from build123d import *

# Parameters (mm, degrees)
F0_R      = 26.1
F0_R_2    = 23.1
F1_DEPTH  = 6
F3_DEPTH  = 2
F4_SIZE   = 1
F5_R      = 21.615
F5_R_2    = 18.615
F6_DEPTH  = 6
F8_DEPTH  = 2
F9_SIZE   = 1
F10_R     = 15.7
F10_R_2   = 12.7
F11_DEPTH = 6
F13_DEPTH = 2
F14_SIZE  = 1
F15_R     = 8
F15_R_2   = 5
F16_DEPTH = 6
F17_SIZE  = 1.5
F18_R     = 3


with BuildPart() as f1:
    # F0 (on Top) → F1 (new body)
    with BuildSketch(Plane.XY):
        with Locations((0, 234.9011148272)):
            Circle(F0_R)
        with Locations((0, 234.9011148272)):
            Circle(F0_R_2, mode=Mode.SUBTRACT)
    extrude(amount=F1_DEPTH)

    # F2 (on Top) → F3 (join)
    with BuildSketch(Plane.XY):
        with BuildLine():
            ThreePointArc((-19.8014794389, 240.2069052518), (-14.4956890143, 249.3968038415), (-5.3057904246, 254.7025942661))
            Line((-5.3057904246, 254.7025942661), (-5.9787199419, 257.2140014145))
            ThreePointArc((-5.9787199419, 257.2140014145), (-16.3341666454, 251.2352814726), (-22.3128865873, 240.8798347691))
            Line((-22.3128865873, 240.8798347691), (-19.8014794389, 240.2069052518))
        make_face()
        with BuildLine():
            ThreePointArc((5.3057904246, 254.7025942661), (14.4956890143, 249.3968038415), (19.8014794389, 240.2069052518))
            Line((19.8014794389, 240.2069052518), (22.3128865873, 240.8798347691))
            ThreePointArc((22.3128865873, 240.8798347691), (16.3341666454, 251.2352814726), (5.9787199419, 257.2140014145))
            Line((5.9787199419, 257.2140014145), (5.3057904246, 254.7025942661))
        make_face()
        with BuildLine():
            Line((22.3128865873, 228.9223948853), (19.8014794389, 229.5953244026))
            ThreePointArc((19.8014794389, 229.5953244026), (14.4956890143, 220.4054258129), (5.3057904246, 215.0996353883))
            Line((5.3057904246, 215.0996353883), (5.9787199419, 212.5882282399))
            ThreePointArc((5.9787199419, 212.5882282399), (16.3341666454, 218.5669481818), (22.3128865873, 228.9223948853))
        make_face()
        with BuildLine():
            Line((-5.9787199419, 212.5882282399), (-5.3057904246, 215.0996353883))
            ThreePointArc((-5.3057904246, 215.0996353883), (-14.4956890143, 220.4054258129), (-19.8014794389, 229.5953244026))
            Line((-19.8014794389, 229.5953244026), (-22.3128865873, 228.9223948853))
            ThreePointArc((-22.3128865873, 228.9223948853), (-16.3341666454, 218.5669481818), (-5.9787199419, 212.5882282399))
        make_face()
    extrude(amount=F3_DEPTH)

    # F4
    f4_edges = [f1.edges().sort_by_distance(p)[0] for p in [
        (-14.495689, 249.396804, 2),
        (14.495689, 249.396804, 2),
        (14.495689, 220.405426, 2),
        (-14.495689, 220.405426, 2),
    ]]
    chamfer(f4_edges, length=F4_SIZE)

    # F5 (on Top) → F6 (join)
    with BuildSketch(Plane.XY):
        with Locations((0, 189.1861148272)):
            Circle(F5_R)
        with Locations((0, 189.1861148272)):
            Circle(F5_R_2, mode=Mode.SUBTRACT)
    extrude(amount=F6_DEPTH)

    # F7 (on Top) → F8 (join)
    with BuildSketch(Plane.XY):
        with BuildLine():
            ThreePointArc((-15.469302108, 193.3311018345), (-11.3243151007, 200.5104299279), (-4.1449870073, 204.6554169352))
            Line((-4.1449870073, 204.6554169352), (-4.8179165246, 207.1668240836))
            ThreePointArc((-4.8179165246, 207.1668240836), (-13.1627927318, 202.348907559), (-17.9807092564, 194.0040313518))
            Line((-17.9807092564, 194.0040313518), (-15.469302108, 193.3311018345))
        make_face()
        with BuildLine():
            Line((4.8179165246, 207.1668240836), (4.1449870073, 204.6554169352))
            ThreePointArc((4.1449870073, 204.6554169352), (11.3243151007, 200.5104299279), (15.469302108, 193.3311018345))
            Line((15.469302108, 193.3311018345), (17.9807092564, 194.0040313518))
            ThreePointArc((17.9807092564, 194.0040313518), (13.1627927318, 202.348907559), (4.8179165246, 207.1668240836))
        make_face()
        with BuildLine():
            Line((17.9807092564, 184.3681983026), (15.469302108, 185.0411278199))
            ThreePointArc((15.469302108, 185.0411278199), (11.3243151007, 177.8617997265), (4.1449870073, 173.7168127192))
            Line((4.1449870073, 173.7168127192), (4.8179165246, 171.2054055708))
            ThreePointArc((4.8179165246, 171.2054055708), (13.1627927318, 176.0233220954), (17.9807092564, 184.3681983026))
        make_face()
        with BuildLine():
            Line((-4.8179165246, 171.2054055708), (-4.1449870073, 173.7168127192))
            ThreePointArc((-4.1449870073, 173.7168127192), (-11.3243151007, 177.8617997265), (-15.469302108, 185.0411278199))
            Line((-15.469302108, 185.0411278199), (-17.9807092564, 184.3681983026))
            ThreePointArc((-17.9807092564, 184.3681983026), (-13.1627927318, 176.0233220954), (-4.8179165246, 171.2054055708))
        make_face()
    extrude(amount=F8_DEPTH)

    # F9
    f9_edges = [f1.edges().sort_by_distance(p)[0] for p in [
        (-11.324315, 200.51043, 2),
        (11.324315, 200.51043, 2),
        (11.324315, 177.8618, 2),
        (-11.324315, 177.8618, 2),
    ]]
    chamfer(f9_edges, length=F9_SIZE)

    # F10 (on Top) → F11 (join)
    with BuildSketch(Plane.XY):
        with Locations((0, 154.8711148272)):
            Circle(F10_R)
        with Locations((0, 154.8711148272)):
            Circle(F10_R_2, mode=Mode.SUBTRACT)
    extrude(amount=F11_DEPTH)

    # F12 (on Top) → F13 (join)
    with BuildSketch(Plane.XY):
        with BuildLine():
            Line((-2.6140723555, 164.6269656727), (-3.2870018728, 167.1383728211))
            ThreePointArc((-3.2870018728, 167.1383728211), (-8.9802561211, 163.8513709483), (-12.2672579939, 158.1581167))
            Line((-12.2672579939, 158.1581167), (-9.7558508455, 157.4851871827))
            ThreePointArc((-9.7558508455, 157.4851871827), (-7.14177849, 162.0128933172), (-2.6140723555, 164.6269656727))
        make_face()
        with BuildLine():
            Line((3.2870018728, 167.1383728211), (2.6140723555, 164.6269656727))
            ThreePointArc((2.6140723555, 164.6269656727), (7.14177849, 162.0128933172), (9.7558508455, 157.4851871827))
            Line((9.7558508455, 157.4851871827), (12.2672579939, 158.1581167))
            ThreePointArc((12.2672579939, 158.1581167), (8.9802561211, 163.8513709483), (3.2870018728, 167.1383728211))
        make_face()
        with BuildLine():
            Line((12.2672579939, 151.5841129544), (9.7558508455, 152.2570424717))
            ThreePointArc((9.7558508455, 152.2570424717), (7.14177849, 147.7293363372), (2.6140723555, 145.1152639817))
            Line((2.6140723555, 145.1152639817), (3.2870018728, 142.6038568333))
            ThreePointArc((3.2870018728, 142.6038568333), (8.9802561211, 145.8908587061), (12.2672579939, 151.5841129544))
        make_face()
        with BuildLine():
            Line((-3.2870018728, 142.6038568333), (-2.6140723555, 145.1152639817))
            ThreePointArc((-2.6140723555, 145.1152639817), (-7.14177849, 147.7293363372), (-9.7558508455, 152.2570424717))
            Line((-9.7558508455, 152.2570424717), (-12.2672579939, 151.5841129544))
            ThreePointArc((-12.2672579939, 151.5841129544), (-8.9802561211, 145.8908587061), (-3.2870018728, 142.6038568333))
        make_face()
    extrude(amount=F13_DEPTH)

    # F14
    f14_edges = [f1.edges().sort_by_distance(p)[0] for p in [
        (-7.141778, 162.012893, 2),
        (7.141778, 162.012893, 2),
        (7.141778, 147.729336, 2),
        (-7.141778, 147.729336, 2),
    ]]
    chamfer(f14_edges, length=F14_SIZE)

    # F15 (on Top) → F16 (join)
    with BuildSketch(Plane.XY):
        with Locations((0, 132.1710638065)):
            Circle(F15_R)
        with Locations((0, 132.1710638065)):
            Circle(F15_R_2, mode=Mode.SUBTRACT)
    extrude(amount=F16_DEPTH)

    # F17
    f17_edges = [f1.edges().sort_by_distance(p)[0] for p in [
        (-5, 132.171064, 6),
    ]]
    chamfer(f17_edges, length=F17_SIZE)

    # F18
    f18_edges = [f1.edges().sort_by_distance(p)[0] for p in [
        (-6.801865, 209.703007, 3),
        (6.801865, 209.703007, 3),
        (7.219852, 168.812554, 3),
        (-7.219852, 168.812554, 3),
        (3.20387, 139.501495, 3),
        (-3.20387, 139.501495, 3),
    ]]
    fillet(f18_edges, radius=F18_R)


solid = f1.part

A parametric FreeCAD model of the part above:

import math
import FreeCAD as App
import Part
import Sketcher
Q = App.Units.Quantity


def edges_at(feature, points):
    """Names of the edges that pass closest to the given points."""
    edges = feature.Shape.Edges
    near = lambda p: min(range(len(edges)), key=lambda i: edges[i].distToShape(Part.Vertex(*p))[0])
    return sorted({f"Edge{near(p) + 1}" for p in points})

doc = App.newDocument("Part")
body = doc.addObject("PartDesign::Body", "Body")

# Sketch on XY plane
sketch1 = body.newObject("Sketcher::SketchObject", "Sketch")
sketch1.AttachmentSupport = (doc.getObject("XY_Plane"), [""])
sketch1.MapMode = "FlatFace"
sketch1.addGeometry([
    Part.Circle(App.Vector(0, 235, 0), App.Vector(0, 0, 1), 26),
    Part.Circle(App.Vector(0, 235, 0), App.Vector(0, 0, 1), 23),
], False)
sketch1.addConstraint([
    Sketcher.Constraint("Coincident", 1, 3, 0, 3),
    Sketcher.Constraint("PointOnObject", 0, 3, -2),
    Sketcher.Constraint("Diameter", 0, Q("52.2 mm")),
    Sketcher.Constraint("Diameter", 1, Q("46.2 mm")),
    Sketcher.Constraint("DistanceY", -1, 1, 0, 3, Q("234.901115 mm")),
])
pad1 = body.newObject("PartDesign::Pad", "Pad")
pad1.Profile = sketch1
pad1.Length = 6

# Sketch on XY plane
sketch2 = body.newObject("Sketcher::SketchObject", "Sketch001")
sketch2.AttachmentSupport = (doc.getObject("XY_Plane"), [""])
sketch2.MapMode = "FlatFace"
sketch2.addGeometry([
    Part.ArcOfCircle(Part.Circle(App.Vector(0, 234.9, 0), App.Vector(0, 0, 1), 20.5), math.radians(105), math.radians(165)),  # 0
    Part.LineSegment(App.Vector(-5.3, 254.7, 0), App.Vector(-6, 257.2, 0)),  # 1
    Part.ArcOfCircle(Part.Circle(App.Vector(0, 234.9, 0), App.Vector(0, 0, 1), 23.1), math.radians(105), math.radians(165)),  # 2
    Part.LineSegment(App.Vector(-22.3, 240.9, 0), App.Vector(-19.8, 240.2, 0)),  # 3
    Part.ArcOfCircle(Part.Circle(App.Vector(0, 234.9, 0), App.Vector(0, 0, 1), 20.5), math.radians(15), math.radians(75)),  # 4
    Part.LineSegment(App.Vector(19.8, 240.2, 0), App.Vector(22.3, 240.9, 0)),  # 5
    Part.ArcOfCircle(Part.Circle(App.Vector(0, 234.9, 0), App.Vector(0, 0, 1), 23.1), math.radians(15), math.radians(75)),  # 6
    Part.LineSegment(App.Vector(6, 257.2, 0), App.Vector(5.3, 254.7, 0)),  # 7
    Part.LineSegment(App.Vector(22.3, 228.9, 0), App.Vector(19.8, 229.6, 0)),  # 8
    Part.ArcOfCircle(Part.Circle(App.Vector(0, 234.9, 0), App.Vector(0, 0, 1), 20.5), math.radians(-75), math.radians(-15)),  # 9
    Part.LineSegment(App.Vector(5.3, 215.1, 0), App.Vector(6, 212.6, 0)),  # 10
    Part.ArcOfCircle(Part.Circle(App.Vector(0, 234.9, 0), App.Vector(0, 0, 1), 23.1), math.radians(-75), math.radians(-15)),  # 11
    Part.LineSegment(App.Vector(-6, 212.6, 0), App.Vector(-5.3, 215.1, 0)),  # 12
    Part.ArcOfCircle(Part.Circle(App.Vector(0, 234.9, 0), App.Vector(0, 0, 1), 20.5), math.radians(-165), math.radians(-105)),  # 13
    Part.LineSegment(App.Vector(-19.8, 229.6, 0), App.Vector(-22.3, 228.9, 0)),  # 14
    Part.ArcOfCircle(Part.Circle(App.Vector(0, 234.9, 0), App.Vector(0, 0, 1), 23.1), math.radians(-165), math.radians(-105)),  # 15
], False)
sketch2.addConstraint([
    Sketcher.Constraint("Coincident", 0, 1, 1, 1),
    Sketcher.Constraint("Coincident", 1, 2, 2, 1),
    Sketcher.Constraint("Coincident", 2, 2, 3, 1),
    Sketcher.Constraint("Coincident", 3, 2, 0, 2),
    Sketcher.Constraint("Coincident", 4, 1, 5, 1),
    Sketcher.Constraint("Coincident", 5, 2, 6, 1),
    Sketcher.Constraint("Coincident", 6, 2, 7, 1),
    Sketcher.Constraint("Coincident", 7, 2, 4, 2),
    Sketcher.Constraint("Coincident", 8, 2, 9, 2),
    Sketcher.Constraint("Coincident", 9, 1, 10, 1),
    Sketcher.Constraint("Coincident", 10, 2, 11, 1),
    Sketcher.Constraint("Coincident", 11, 2, 8, 1),
    Sketcher.Constraint("Coincident", 12, 2, 13, 2),
    Sketcher.Constraint("Coincident", 13, 1, 14, 1),
    Sketcher.Constraint("Coincident", 14, 2, 15, 1),
    Sketcher.Constraint("Coincident", 15, 2, 12, 1),
    Sketcher.Constraint("Coincident", 2, 3, 0, 3),
    Sketcher.Constraint("Coincident", 4, 3, 0, 3),
    Sketcher.Constraint("Coincident", 6, 3, 0, 3),
    Sketcher.Constraint("Coincident", 9, 3, 0, 3),
    Sketcher.Constraint("Coincident", 11, 3, 0, 3),
    Sketcher.Constraint("Coincident", 13, 3, 0, 3),
    Sketcher.Constraint("Coincident", 15, 3, 0, 3),
    Sketcher.Constraint("Equal", 0, 4),
    Sketcher.Constraint("Equal", 2, 6),
    Sketcher.Constraint("Equal", 4, 9),
    Sketcher.Constraint("Equal", 6, 11),
    Sketcher.Constraint("Equal", 9, 13),
    Sketcher.Constraint("Equal", 11, 15),
    Sketcher.Constraint("Symmetric", 3, 2, 4, 1, -2),
    Sketcher.Constraint("Perpendicular", 1, 5),
    Sketcher.Constraint("Perpendicular", 3, 7),
    Sketcher.Constraint("Perpendicular", 7, 8),
    Sketcher.Constraint("Perpendicular", 5, 10),
    Sketcher.Constraint("Perpendicular", 8, 12),
    Sketcher.Constraint("Perpendicular", 10, 14),
    Sketcher.Constraint("Horizontal", 2, 2, 5, 2),
    Sketcher.Constraint("Horizontal", 1, 2, 6, 2),
    Sketcher.Constraint("Horizontal", 9, 1, 12, 2),
    Sketcher.Constraint("Horizontal", 8, 2, 13, 1),
    Sketcher.Constraint("Vertical", 4, 1, 8, 2),
    Sketcher.Constraint("Vertical", 7, 2, 9, 1),
    Sketcher.Constraint("Radius", 0, Q("20.5 mm")),
    Sketcher.Constraint("Radius", 2, Q("23.1 mm")),
    Sketcher.Constraint("Angle", 1, Q("105 deg")),
    Sketcher.Constraint("DistanceY", -1, 1, 1, 2, Q("257.214001 mm")),
    Sketcher.Constraint("DistanceX", 0, 1, -1, 1, Q("5.30579 mm")),
    Sketcher.Constraint("DistanceX", 3, 2, -1, 1, Q("19.801479 mm")),
])
pad2 = body.newObject("PartDesign::Pad", "Pad001")
pad2.Profile = sketch2
pad2.Length = 2
doc.recompute()

chamfer = body.newObject("PartDesign::Chamfer", "Chamfer")
chamfer.Base = (pad2, edges_at(pad2, [
    (-14.496, 249.397, 2),
    (14.496, 249.397, 2),
    (14.496, 220.405, 2),
    (-14.496, 220.405, 2),
]))
chamfer.Size = 1

# Sketch on XY plane
sketch3 = body.newObject("Sketcher::SketchObject", "Sketch002")
sketch3.AttachmentSupport = (doc.getObject("XY_Plane"), [""])
sketch3.MapMode = "FlatFace"
sketch3.addGeometry([
    Part.Circle(App.Vector(0, 189, 0), App.Vector(0, 0, 1), 22),
    Part.Circle(App.Vector(0, 189, 0), App.Vector(0, 0, 1), 19),
], False)
sketch3.addConstraint([
    Sketcher.Constraint("Coincident", 1, 3, 0, 3),
    Sketcher.Constraint("PointOnObject", 0, 3, -2),
    Sketcher.Constraint("Diameter", 0, Q("43.23 mm")),
    Sketcher.Constraint("Diameter", 1, Q("37.23 mm")),
    Sketcher.Constraint("DistanceY", -1, 1, 0, 3, Q("189.186115 mm")),
])
pad3 = body.newObject("PartDesign::Pad", "Pad002")
pad3.Profile = sketch3
pad3.Length = 6

# Sketch on XY plane
sketch4 = body.newObject("Sketcher::SketchObject", "Sketch003")
sketch4.AttachmentSupport = (doc.getObject("XY_Plane"), [""])
sketch4.MapMode = "FlatFace"
sketch4.addGeometry([
    Part.ArcOfCircle(Part.Circle(App.Vector(0, 189.2, 0), App.Vector(0, 0, 1), 16), math.radians(105), math.radians(165)),  # 0
    Part.LineSegment(App.Vector(-4.1, 204.7, 0), App.Vector(-4.8, 207.2, 0)),  # 1
    Part.ArcOfCircle(Part.Circle(App.Vector(0, 189.2, 0), App.Vector(0, 0, 1), 18.6), math.radians(105), math.radians(165)),  # 2
    Part.LineSegment(App.Vector(-18, 194, 0), App.Vector(-15.5, 193.3, 0)),  # 3
    Part.LineSegment(App.Vector(4.8, 207.2, 0), App.Vector(4.1, 204.7, 0)),  # 4
    Part.ArcOfCircle(Part.Circle(App.Vector(0, 189.2, 0), App.Vector(0, 0, 1), 16), math.radians(15), math.radians(75)),  # 5
    Part.LineSegment(App.Vector(15.5, 193.3, 0), App.Vector(18, 194, 0)),  # 6
    Part.ArcOfCircle(Part.Circle(App.Vector(0, 189.2, 0), App.Vector(0, 0, 1), 18.6), math.radians(15), math.radians(75)),  # 7
    Part.LineSegment(App.Vector(18, 184.4, 0), App.Vector(15.5, 185, 0)),  # 8
    Part.ArcOfCircle(Part.Circle(App.Vector(0, 189.2, 0), App.Vector(0, 0, 1), 16), math.radians(-75), math.radians(-15)),  # 9
    Part.LineSegment(App.Vector(4.1, 173.7, 0), App.Vector(4.8, 171.2, 0)),  # 10
    Part.ArcOfCircle(Part.Circle(App.Vector(0, 189.2, 0), App.Vector(0, 0, 1), 18.6), math.radians(-75), math.radians(-15)),  # 11
    Part.LineSegment(App.Vector(-4.8, 171.2, 0), App.Vector(-4.1, 173.7, 0)),  # 12
    Part.ArcOfCircle(Part.Circle(App.Vector(0, 189.2, 0), App.Vector(0, 0, 1), 16), math.radians(-165), math.radians(-105)),  # 13
    Part.LineSegment(App.Vector(-15.5, 185, 0), App.Vector(-18, 184.4, 0)),  # 14
    Part.ArcOfCircle(Part.Circle(App.Vector(0, 189.2, 0), App.Vector(0, 0, 1), 18.6), math.radians(-165), math.radians(-105)),  # 15
], False)
sketch4.addConstraint([
    Sketcher.Constraint("Coincident", 0, 1, 1, 1),
    Sketcher.Constraint("Coincident", 1, 2, 2, 1),
    Sketcher.Constraint("Coincident", 2, 2, 3, 1),
    Sketcher.Constraint("Coincident", 3, 2, 0, 2),
    Sketcher.Constraint("Coincident", 4, 2, 5, 2),
    Sketcher.Constraint("Coincident", 5, 1, 6, 1),
    Sketcher.Constraint("Coincident", 6, 2, 7, 1),
    Sketcher.Constraint("Coincident", 7, 2, 4, 1),
    Sketcher.Constraint("Coincident", 8, 2, 9, 2),
    Sketcher.Constraint("Coincident", 9, 1, 10, 1),
    Sketcher.Constraint("Coincident", 10, 2, 11, 1),
    Sketcher.Constraint("Coincident", 11, 2, 8, 1),
    Sketcher.Constraint("Coincident", 12, 2, 13, 2),
    Sketcher.Constraint("Coincident", 13, 1, 14, 1),
    Sketcher.Constraint("Coincident", 14, 2, 15, 1),
    Sketcher.Constraint("Coincident", 15, 2, 12, 1),
    Sketcher.Constraint("Coincident", 2, 3, 0, 3),
    Sketcher.Constraint("Coincident", 5, 3, 0, 3),
    Sketcher.Constraint("Coincident", 7, 3, 0, 3),
    Sketcher.Constraint("Coincident", 9, 3, 0, 3),
    Sketcher.Constraint("Coincident", 11, 3, 0, 3),
    Sketcher.Constraint("Coincident", 13, 3, 0, 3),
    Sketcher.Constraint("Coincident", 15, 3, 0, 3),
    Sketcher.Constraint("Equal", 0, 5),
    Sketcher.Constraint("Equal", 2, 7),
    Sketcher.Constraint("Equal", 5, 9),
    Sketcher.Constraint("Equal", 7, 11),
    Sketcher.Constraint("Equal", 9, 13),
    Sketcher.Constraint("Equal", 11, 15),
    Sketcher.Constraint("Symmetric", 0, 1, 4, 2, -2),
    Sketcher.Constraint("Perpendicular", 3, 4),
    Sketcher.Constraint("Perpendicular", 1, 6),
    Sketcher.Constraint("Perpendicular", 4, 8),
    Sketcher.Constraint("Perpendicular", 6, 10),
    Sketcher.Constraint("Perpendicular", 8, 12),
    Sketcher.Constraint("Perpendicular", 10, 14),
    Sketcher.Constraint("Horizontal", 3, 2, 5, 1),
    Sketcher.Constraint("Horizontal", 2, 2, 6, 2),
    Sketcher.Constraint("Horizontal", 9, 1, 12, 2),
    Sketcher.Constraint("Horizontal", 8, 2, 13, 1),
    Sketcher.Constraint("Vertical", 5, 1, 8, 2),
    Sketcher.Constraint("Vertical", 4, 2, 9, 1),
    Sketcher.Constraint("Angle", 1, Q("105 deg")),
    Sketcher.Constraint("Radius", 0, Q("16.015 mm")),
    Sketcher.Constraint("Radius", 2, Q("18.615 mm")),
    Sketcher.Constraint("DistanceY", -1, 1, 3, 2, Q("193.331102 mm")),
    Sketcher.Constraint("DistanceY", -1, 1, 11, 2, Q("184.368198 mm")),
    Sketcher.Constraint("DistanceY", 0, 3, 1, 2, Q("17.980709 mm")),
])
pad4 = body.newObject("PartDesign::Pad", "Pad003")
pad4.Profile = sketch4
pad4.Length = 2
doc.recompute()

chamfer2 = body.newObject("PartDesign::Chamfer", "Chamfer001")
chamfer2.Base = (pad4, edges_at(pad4, [
    (-11.324, 200.51, 2),
    (11.324, 200.51, 2),
    (11.324, 177.862, 2),
    (-11.324, 177.862, 2),
]))
chamfer2.Size = 1

# Sketch on XY plane
sketch5 = body.newObject("Sketcher::SketchObject", "Sketch004")
sketch5.AttachmentSupport = (doc.getObject("XY_Plane"), [""])
sketch5.MapMode = "FlatFace"
sketch5.addGeometry([
    Part.Circle(App.Vector(0, 155, 0), App.Vector(0, 0, 1), 16),
    Part.Circle(App.Vector(0, 155, 0), App.Vector(0, 0, 1), 13),
], False)
sketch5.addConstraint([
    Sketcher.Constraint("Coincident", 1, 3, 0, 3),
    Sketcher.Constraint("PointOnObject", 0, 3, -2),
    Sketcher.Constraint("Diameter", 0, Q("31.4 mm")),
    Sketcher.Constraint("Diameter", 1, Q("25.4 mm")),
    Sketcher.Constraint("DistanceY", -1, 1, 0, 3, Q("154.871115 mm")),
])
pad5 = body.newObject("PartDesign::Pad", "Pad004")
pad5.Profile = sketch5
pad5.Length = 6

# Sketch on XY plane
sketch6 = body.newObject("Sketcher::SketchObject", "Sketch005")
sketch6.AttachmentSupport = (doc.getObject("XY_Plane"), [""])
sketch6.MapMode = "FlatFace"
sketch6.addGeometry([
    Part.LineSegment(App.Vector(-2.6, 164.6, 0), App.Vector(-3.3, 167.1, 0)),  # 0
    Part.ArcOfCircle(Part.Circle(App.Vector(0, 154.9, 0), App.Vector(0, 0, 1), 12.7), math.radians(105), math.radians(165)),  # 1
    Part.LineSegment(App.Vector(-12.3, 158.2, 0), App.Vector(-9.8, 157.5, 0)),  # 2
    Part.ArcOfCircle(Part.Circle(App.Vector(0, 154.9, 0), App.Vector(0, 0, 1), 10.1), math.radians(105), math.radians(165)),  # 3
    Part.LineSegment(App.Vector(3.3, 167.1, 0), App.Vector(2.6, 164.6, 0)),  # 4
    Part.ArcOfCircle(Part.Circle(App.Vector(0, 154.9, 0), App.Vector(0, 0, 1), 10.1), math.radians(15), math.radians(75)),  # 5
    Part.LineSegment(App.Vector(9.8, 157.5, 0), App.Vector(12.3, 158.2, 0)),  # 6
    Part.ArcOfCircle(Part.Circle(App.Vector(0, 154.9, 0), App.Vector(0, 0, 1), 12.7), math.radians(15), math.radians(75)),  # 7
    Part.LineSegment(App.Vector(12.3, 151.6, 0), App.Vector(9.8, 152.3, 0)),  # 8
    Part.ArcOfCircle(Part.Circle(App.Vector(0, 154.9, 0), App.Vector(0, 0, 1), 10.1), math.radians(-75), math.radians(-15)),  # 9
    Part.LineSegment(App.Vector(2.6, 145.1, 0), App.Vector(3.3, 142.6, 0)),  # 10
    Part.ArcOfCircle(Part.Circle(App.Vector(0, 154.9, 0), App.Vector(0, 0, 1), 12.7), math.radians(-75), math.radians(-15)),  # 11
    Part.LineSegment(App.Vector(-3.3, 142.6, 0), App.Vector(-2.6, 145.1, 0)),  # 12
    Part.ArcOfCircle(Part.Circle(App.Vector(0, 154.9, 0), App.Vector(0, 0, 1), 10.1), math.radians(-165), math.radians(-105)),  # 13
    Part.LineSegment(App.Vector(-9.8, 152.3, 0), App.Vector(-12.3, 151.6, 0)),  # 14
    Part.ArcOfCircle(Part.Circle(App.Vector(0, 154.9, 0), App.Vector(0, 0, 1), 12.7), math.radians(-165), math.radians(-105)),  # 15
], False)
sketch6.addConstraint([
    Sketcher.Constraint("Coincident", 0, 2, 1, 1),
    Sketcher.Constraint("Coincident", 1, 2, 2, 1),
    Sketcher.Constraint("Coincident", 2, 2, 3, 2),
    Sketcher.Constraint("Coincident", 3, 1, 0, 1),
    Sketcher.Constraint("Coincident", 4, 2, 5, 2),
    Sketcher.Constraint("Coincident", 5, 1, 6, 1),
    Sketcher.Constraint("Coincident", 6, 2, 7, 1),
    Sketcher.Constraint("Coincident", 7, 2, 4, 1),
    Sketcher.Constraint("Coincident", 8, 2, 9, 2),
    Sketcher.Constraint("Coincident", 9, 1, 10, 1),
    Sketcher.Constraint("Coincident", 10, 2, 11, 1),
    Sketcher.Constraint("Coincident", 11, 2, 8, 1),
    Sketcher.Constraint("Coincident", 12, 2, 13, 2),
    Sketcher.Constraint("Coincident", 13, 1, 14, 1),
    Sketcher.Constraint("Coincident", 14, 2, 15, 1),
    Sketcher.Constraint("Coincident", 15, 2, 12, 1),
    Sketcher.Constraint("Coincident", 3, 3, 1, 3),
    Sketcher.Constraint("Coincident", 5, 3, 1, 3),
    Sketcher.Constraint("Coincident", 7, 3, 1, 3),
    Sketcher.Constraint("Coincident", 9, 3, 1, 3),
    Sketcher.Constraint("Coincident", 11, 3, 1, 3),
    Sketcher.Constraint("Coincident", 13, 3, 1, 3),
    Sketcher.Constraint("Coincident", 15, 3, 1, 3),
    Sketcher.Constraint("Equal", 3, 5),
    Sketcher.Constraint("Equal", 1, 7),
    Sketcher.Constraint("Equal", 5, 9),
    Sketcher.Constraint("Equal", 7, 11),
    Sketcher.Constraint("Equal", 9, 13),
    Sketcher.Constraint("Equal", 11, 15),
    Sketcher.Constraint("Symmetric", 3, 1, 4, 2, -2),
    Sketcher.Constraint("Perpendicular", 2, 4),
    Sketcher.Constraint("Perpendicular", 0, 6),
    Sketcher.Constraint("Perpendicular", 4, 8),
    Sketcher.Constraint("Perpendicular", 6, 10),
    Sketcher.Constraint("Perpendicular", 8, 12),
    Sketcher.Constraint("Perpendicular", 10, 14),
    Sketcher.Constraint("Horizontal", 2, 2, 5, 1),
    Sketcher.Constraint("Horizontal", 1, 2, 6, 2),
    Sketcher.Constraint("Horizontal", 9, 1, 12, 2),
    Sketcher.Constraint("Horizontal", 8, 2, 13, 1),
    Sketcher.Constraint("Vertical", 5, 1, 8, 2),
    Sketcher.Constraint("Vertical", 4, 2, 9, 1),
    Sketcher.Constraint("Radius", 1, Q("12.7 mm")),
    Sketcher.Constraint("Radius", 3, Q("10.1 mm")),
    Sketcher.Constraint("Angle", 0, Q("105 deg")),
    Sketcher.Constraint("DistanceX", 0, 2, -1, 1, Q("3.287002 mm")),
    Sketcher.Constraint("DistanceY", 1, 3, 1, 2, Q("3.287002 mm")),
    Sketcher.Constraint("DistanceY", -1, 1, 1, 3, Q("154.871115 mm")),
])
pad6 = body.newObject("PartDesign::Pad", "Pad005")
pad6.Profile = sketch6
pad6.Length = 2
doc.recompute()

chamfer3 = body.newObject("PartDesign::Chamfer", "Chamfer002")
chamfer3.Base = (pad6, edges_at(pad6, [
    (-7.142, 162.013, 2),
    (7.142, 162.013, 2),
    (7.142, 147.729, 2),
    (-7.142, 147.729, 2),
]))
chamfer3.Size = 1

# Sketch on XY plane
sketch7 = body.newObject("Sketcher::SketchObject", "Sketch006")
sketch7.AttachmentSupport = (doc.getObject("XY_Plane"), [""])
sketch7.MapMode = "FlatFace"
sketch7.addGeometry([
    Part.Circle(App.Vector(0, 132, 0), App.Vector(0, 0, 1), 8),
    Part.Circle(App.Vector(0, 132, 0), App.Vector(0, 0, 1), 5),
], False)
sketch7.addConstraint([
    Sketcher.Constraint("Coincident", 1, 3, 0, 3),
    Sketcher.Constraint("PointOnObject", 0, 3, -2),
    Sketcher.Constraint("Diameter", 0, Q("16 mm")),
    Sketcher.Constraint("Diameter", 1, Q("10 mm")),
    Sketcher.Constraint("DistanceY", -1, 1, 0, 3, Q("132.171064 mm")),
])
pad7 = body.newObject("PartDesign::Pad", "Pad006")
pad7.Profile = sketch7
pad7.Length = 6
doc.recompute()

chamfer4 = body.newObject("PartDesign::Chamfer", "Chamfer003")
chamfer4.Base = (pad7, edges_at(pad7, [(-5, 132.171, 6)]))
chamfer4.Size = 1.5
doc.recompute()

fillet = body.newObject("PartDesign::Fillet", "Fillet")
fillet.Base = (chamfer4, edges_at(chamfer4, [
    (-6.802, 209.703, 3),
    (6.802, 209.703, 3),
    (7.22, 168.813, 3),
    (-7.22, 168.813, 3),
    (3.204, 139.501, 3),
    (-3.204, 139.501, 3),
]))
fillet.Radius = 3

doc.recompute()
